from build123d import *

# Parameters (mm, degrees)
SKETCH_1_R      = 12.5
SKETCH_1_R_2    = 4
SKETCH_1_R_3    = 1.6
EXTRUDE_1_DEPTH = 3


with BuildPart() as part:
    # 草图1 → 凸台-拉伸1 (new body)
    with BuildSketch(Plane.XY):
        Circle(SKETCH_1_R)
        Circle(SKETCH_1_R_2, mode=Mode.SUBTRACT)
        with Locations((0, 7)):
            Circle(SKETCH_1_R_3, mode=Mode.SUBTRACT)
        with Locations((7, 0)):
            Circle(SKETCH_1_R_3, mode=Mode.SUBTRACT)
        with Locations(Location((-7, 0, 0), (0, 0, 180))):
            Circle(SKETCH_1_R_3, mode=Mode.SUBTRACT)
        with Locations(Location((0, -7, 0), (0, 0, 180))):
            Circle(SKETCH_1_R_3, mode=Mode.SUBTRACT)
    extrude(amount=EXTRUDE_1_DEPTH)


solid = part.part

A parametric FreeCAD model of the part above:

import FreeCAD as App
import Part
import Sketcher
Q = App.Units.Quantity

doc = App.newDocument("Part")
params = doc.addObject("Spreadsheet::Sheet", "Params")
for row, (alias, value) in enumerate([
    ("sketch1_diameter", "25 mm"),
    ("sketch1_diameter2", "8 mm"),
    ("sketch1_diameter3", "3.2 mm"),
    ("pad1_length", "3 mm"),
], start=1):
    params.set(f"A{row}", alias)
    params.set(f"B{row}", "=" + value)
    params.setAlias(f"B{row}", alias)

body = doc.addObject("PartDesign::Body", "Body")

# Sketch on XY plane
sketch1 = body.newObject("Sketcher::SketchObject", "Sketch")
sketch1.AttachmentSupport = (doc.getObject("XY_Plane"), [""])
sketch1.MapMode = "FlatFace"
sketch1.addGeometry([
    Part.Circle(App.Vector(0, 0, 0), App.Vector(0, 0, 1), 12.5),  # 0
    Part.Circle(App.Vector(0, -7, 0), App.Vector(0, 0, 1), 1.6),  # 1
    Part.Circle(App.Vector(-7, 0, 0), App.Vector(0, 0, 1), 1.6),  # 2
    Part.Circle(App.Vector(0, 0, 0), App.Vector(0, 0, 1), 4),  # 3
    Part.Circle(App.Vector(7, 0, 0), App.Vector(0, 0, 1), 1.6),  # 4
    Part.Circle(App.Vector(0, 7, 0), App.Vector(0, 0, 1), 1.6),  # 5
], False)
sketch1.addConstraint([
    Sketcher.Constraint("Coincident", 0, 3, -1, 1),
    Sketcher.Constraint("Coincident", 3, 3, -1, 1),
    Sketcher.Constraint("Equal", 1, 2),
    Sketcher.Constraint("Equal", 2, 4),
    Sketcher.Constraint("Equal", 4, 5),
    Sketcher.Constraint("Symmetric", 2, 3, 4, 3, -1, 1),
    Sketcher.Constraint("Symmetric", 1, 3, 5, 3, -1, 1),
    Sketcher.Constraint("PointOnObject", 1, 3, -2),
    Sketcher.Constraint("PointOnObject", 2, 3, -1),
    Sketcher.Constraint("Diameter", 0, Q("25 mm")),
    Sketcher.Constraint("Diameter", 3, Q("8 mm")),
    Sketcher.Constraint("Diameter", 1, Q("3.2 mm")),
    Sketcher.Constraint("DistanceY", 1, 3, -1, 1, Q("7 mm")),
    Sketcher.Constraint("DistanceX", 2, 3, -1, 1, Q("7 mm")),
])
sketch1.setExpression("Constraints[9]", "Params.sketch1_diameter")
sketch1.setExpression("Constraints[10]", "Params.sketch1_diameter2")
sketch1.setExpression("Constraints[11]", "Params.sketch1_diameter3")
pad1 = body.newObject("PartDesign::Pad", "Pad")
pad1.Profile = sketch1
pad1.setExpression("Length", "Params.pad1_length")

doc.recompute()
